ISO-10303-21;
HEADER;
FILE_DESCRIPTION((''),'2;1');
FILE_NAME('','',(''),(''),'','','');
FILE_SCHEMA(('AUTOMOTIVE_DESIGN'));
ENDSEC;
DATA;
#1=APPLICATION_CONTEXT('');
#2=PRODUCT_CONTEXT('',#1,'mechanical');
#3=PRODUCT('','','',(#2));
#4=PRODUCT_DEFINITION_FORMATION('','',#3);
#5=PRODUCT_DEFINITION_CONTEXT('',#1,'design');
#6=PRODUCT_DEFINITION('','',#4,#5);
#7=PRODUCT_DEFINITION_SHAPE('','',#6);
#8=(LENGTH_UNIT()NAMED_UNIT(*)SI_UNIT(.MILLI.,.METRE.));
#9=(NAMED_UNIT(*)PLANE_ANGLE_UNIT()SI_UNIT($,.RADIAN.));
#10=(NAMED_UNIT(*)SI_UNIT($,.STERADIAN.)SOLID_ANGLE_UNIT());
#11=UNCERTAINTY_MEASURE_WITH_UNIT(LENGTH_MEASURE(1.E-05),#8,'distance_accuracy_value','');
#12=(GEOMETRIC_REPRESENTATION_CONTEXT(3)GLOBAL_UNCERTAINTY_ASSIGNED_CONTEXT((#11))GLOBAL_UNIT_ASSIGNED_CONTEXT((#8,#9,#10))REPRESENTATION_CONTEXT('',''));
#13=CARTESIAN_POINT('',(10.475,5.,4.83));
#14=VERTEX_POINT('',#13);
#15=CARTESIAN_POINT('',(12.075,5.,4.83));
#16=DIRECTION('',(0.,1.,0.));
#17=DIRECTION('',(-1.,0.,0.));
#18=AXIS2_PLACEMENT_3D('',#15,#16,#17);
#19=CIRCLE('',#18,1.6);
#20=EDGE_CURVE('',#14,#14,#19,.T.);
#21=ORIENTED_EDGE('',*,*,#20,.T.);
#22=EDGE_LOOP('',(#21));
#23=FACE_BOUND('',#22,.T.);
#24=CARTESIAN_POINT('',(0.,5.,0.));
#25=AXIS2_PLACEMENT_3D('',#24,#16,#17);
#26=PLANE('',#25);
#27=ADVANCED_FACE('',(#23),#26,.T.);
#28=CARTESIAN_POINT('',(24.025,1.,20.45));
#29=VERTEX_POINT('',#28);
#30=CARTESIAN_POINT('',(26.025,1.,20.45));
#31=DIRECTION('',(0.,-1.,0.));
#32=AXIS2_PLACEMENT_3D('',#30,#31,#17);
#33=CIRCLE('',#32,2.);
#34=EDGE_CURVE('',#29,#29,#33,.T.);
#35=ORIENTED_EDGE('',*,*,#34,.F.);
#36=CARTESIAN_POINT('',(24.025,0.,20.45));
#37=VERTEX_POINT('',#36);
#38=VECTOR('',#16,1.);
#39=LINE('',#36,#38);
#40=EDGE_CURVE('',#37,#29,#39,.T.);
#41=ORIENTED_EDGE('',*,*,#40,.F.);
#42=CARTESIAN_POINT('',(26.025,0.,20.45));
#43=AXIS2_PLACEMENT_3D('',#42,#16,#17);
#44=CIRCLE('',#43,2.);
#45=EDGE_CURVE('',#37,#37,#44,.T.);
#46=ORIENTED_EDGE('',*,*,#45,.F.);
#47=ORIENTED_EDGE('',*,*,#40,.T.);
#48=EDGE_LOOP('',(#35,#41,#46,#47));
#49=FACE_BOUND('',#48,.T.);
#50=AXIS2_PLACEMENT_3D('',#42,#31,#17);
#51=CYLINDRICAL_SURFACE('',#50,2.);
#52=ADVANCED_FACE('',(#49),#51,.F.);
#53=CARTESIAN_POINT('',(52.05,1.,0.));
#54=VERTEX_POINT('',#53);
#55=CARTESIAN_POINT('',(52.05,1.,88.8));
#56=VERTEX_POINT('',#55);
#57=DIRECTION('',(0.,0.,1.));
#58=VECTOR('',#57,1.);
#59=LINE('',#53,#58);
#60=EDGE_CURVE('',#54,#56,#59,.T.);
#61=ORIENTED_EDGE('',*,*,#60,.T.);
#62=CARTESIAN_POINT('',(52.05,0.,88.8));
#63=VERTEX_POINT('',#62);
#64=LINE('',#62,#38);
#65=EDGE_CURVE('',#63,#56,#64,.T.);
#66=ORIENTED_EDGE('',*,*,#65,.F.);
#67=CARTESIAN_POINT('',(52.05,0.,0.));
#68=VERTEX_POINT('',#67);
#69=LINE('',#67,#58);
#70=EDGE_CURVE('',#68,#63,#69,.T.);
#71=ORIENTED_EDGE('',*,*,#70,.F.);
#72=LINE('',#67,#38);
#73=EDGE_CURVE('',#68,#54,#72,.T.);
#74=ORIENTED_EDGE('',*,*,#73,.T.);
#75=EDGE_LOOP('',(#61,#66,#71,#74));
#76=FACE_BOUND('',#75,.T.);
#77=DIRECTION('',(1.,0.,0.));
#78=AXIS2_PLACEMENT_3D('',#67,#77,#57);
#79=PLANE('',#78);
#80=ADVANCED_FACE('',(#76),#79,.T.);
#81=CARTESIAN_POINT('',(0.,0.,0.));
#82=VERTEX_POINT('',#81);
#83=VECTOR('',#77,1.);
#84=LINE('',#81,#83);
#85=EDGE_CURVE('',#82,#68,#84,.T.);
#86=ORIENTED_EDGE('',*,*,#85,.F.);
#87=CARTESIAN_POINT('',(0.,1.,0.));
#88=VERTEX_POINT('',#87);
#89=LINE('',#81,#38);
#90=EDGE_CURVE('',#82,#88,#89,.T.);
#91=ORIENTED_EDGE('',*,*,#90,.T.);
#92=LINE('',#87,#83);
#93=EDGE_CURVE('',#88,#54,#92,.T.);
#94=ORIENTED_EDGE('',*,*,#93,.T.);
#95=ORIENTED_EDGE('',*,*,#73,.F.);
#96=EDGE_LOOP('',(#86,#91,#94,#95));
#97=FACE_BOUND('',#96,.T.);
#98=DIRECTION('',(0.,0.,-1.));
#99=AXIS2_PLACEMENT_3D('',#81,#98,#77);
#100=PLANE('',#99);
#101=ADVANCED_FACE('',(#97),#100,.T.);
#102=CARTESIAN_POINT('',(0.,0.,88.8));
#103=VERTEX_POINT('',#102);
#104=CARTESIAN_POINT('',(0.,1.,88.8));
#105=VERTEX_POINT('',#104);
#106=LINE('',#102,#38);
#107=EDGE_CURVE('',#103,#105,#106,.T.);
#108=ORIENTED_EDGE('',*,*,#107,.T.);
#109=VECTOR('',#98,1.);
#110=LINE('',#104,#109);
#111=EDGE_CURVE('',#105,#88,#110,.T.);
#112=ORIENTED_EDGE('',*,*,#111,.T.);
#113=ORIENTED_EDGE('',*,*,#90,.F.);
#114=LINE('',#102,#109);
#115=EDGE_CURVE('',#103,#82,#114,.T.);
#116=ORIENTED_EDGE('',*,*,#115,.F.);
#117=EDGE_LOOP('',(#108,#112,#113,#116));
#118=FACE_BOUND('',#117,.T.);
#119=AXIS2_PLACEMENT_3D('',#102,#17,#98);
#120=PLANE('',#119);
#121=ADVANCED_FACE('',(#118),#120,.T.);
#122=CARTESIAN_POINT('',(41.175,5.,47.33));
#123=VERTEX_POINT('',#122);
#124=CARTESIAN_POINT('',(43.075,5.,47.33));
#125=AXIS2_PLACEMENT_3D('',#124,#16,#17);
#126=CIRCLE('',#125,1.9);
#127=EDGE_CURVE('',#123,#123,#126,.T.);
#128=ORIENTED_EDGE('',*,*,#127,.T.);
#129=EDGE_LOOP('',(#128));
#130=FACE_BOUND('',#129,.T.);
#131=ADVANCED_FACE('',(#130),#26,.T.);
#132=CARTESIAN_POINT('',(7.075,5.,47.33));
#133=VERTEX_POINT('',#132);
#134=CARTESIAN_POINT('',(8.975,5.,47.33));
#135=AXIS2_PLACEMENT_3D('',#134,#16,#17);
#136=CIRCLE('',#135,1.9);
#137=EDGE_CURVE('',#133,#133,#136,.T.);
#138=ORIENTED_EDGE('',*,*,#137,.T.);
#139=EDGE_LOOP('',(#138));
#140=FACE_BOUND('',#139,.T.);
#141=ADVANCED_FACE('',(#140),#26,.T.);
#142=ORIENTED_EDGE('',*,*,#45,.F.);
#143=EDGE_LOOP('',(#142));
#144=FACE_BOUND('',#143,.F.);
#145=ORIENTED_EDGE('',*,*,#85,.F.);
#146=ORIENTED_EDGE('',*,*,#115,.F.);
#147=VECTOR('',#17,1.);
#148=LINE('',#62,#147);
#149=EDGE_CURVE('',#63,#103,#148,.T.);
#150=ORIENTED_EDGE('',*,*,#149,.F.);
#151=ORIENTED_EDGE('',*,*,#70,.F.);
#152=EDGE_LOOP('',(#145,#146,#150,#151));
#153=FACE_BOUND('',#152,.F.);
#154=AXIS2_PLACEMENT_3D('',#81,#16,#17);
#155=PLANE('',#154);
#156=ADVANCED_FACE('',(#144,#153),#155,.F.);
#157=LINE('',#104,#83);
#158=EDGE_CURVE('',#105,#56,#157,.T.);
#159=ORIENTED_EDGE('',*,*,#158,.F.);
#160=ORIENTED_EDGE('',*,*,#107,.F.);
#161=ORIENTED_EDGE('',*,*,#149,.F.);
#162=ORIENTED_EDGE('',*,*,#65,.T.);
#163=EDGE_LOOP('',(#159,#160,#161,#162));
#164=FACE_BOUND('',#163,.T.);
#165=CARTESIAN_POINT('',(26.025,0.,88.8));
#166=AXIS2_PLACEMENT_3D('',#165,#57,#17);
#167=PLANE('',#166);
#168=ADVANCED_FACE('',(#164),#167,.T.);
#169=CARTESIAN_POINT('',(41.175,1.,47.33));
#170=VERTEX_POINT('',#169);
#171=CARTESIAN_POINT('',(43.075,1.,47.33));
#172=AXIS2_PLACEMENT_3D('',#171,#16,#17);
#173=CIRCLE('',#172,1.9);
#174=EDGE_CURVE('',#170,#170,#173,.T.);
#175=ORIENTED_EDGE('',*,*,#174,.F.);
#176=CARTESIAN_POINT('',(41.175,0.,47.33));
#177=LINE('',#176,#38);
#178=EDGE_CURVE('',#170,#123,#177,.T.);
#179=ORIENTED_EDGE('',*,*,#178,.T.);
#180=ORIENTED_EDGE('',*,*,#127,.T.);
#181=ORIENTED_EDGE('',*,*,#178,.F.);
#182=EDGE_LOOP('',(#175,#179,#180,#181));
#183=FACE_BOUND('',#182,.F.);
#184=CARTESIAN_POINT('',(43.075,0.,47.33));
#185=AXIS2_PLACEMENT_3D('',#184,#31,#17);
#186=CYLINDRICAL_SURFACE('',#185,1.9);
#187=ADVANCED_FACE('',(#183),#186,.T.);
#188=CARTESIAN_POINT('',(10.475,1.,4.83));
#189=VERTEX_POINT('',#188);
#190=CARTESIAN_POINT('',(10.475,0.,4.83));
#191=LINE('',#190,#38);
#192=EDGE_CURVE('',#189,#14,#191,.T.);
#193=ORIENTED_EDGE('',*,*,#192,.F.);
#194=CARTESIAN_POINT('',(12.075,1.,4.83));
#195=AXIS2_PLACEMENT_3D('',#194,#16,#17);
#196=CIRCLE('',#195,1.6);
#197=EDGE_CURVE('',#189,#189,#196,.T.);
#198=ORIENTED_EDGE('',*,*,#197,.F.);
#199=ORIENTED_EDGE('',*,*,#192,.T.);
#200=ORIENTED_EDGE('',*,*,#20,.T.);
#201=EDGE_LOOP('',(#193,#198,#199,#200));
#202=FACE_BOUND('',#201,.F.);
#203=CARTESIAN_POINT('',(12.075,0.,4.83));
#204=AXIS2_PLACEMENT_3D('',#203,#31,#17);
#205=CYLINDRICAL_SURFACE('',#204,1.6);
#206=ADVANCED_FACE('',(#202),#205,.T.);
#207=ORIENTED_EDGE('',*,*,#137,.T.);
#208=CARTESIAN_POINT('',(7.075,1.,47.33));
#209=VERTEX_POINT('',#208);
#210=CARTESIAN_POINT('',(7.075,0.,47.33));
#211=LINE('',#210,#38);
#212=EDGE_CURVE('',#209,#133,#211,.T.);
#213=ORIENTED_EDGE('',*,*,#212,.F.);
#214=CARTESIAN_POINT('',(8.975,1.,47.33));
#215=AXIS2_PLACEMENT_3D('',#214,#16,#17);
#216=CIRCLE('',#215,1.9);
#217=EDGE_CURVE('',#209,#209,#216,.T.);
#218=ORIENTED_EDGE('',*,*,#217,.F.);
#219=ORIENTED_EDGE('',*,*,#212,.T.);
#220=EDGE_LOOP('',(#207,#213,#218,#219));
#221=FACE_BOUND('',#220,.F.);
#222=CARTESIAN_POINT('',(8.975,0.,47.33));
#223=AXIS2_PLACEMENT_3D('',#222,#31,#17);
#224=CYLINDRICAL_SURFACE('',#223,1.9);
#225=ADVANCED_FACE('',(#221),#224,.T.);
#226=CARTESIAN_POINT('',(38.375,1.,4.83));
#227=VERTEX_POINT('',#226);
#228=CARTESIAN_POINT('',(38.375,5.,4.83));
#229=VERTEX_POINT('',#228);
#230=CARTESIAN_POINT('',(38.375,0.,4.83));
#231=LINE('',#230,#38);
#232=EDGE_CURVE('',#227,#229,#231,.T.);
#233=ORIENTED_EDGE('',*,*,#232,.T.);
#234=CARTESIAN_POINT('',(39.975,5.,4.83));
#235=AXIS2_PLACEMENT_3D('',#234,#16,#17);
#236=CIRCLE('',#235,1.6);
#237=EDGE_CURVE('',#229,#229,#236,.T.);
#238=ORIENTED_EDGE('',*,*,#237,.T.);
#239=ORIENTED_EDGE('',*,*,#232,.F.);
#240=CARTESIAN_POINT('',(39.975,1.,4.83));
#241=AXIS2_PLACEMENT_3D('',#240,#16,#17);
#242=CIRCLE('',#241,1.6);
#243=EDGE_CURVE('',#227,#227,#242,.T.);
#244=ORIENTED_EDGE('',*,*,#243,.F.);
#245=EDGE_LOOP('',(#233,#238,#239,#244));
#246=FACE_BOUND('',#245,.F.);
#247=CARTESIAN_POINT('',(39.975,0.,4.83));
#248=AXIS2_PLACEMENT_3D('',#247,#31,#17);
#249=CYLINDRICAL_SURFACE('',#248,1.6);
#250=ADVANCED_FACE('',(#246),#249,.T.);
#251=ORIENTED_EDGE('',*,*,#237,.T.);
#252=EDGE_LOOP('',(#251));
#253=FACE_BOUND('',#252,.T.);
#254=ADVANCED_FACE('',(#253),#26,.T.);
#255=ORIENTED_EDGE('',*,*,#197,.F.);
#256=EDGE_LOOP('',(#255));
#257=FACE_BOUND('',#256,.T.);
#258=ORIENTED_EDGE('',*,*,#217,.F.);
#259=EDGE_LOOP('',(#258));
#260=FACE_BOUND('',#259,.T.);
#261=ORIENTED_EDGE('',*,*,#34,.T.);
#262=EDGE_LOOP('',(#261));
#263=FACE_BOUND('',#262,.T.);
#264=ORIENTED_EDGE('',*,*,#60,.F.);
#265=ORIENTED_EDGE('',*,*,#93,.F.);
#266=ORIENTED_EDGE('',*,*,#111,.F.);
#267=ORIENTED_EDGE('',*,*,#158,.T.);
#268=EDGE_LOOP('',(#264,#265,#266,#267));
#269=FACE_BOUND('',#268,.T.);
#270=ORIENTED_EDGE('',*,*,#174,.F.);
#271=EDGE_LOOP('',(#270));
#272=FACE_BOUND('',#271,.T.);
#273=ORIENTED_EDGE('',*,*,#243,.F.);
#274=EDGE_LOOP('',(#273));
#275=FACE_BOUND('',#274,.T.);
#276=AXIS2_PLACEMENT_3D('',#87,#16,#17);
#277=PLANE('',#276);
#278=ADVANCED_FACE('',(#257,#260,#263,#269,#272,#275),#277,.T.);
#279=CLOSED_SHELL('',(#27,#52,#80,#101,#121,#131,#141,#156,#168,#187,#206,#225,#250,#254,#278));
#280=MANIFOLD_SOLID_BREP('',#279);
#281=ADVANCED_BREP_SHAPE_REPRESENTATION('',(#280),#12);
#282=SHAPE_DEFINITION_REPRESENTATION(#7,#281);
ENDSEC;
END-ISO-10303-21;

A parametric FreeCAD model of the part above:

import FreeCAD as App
import Part
import Sketcher

V = App.Vector
Q = App.Units.Quantity

doc = App.newDocument("Part")
params = doc.addObject("Spreadsheet::Sheet", "Params")
for row, (alias, value) in enumerate([
    ("sketch1_diameter", "3.8 mm"),
    ("sketch1_diameter2", "3.2 mm"),
    ("pad1_length", "5 mm"),
    ("sketch2_diameter", "3.2 mm"),
    ("sketch2_diameter2", "3.8 mm"),
    ("sketch2_height", "88.8 mm"),
    ("sketch2_width", "52.05 mm"),
    ("pad2_length", "1 mm"),
    ("sketch3_diameter", "4 mm"),
    ("pocket1_length", "5 mm"),
], start=1):
    params.set(f"A{row}", alias)
    params.set(f"B{row}", "=" + value)
    params.setAlias(f"B{row}", alias)

body = doc.addObject("PartDesign::Body", "Body")
body.AllowCompound = True

# Sketch on XZ plane
sketch1 = body.newObject("Sketcher::SketchObject", "Sketch")
sketch1.AttachmentSupport = (doc.getObject("XZ_Plane"), [""])
sketch1.MapMode = "FlatFace"
sketch1.addGeometry([
    Part.Circle(V(9, 47.3, 0), V(0, 0, 1), 1.9),
    Part.Circle(V(12.1, 4.8, 0), V(0, 0, 1), 1.6),
    Part.Circle(V(43.1, 47.3, 0), V(0, 0, 1), 1.9),
    Part.Circle(V(40, 4.8, 0), V(0, 0, 1), 1.6),
], False)
sketch1.addConstraint([
    Sketcher.Constraint("Equal", 0, 2),
    Sketcher.Constraint("Equal", 1, 3),
    Sketcher.Constraint("Horizontal", 0, 3, 2, 3),
    Sketcher.Constraint("Horizontal", 1, 3, 3, 3),
    Sketcher.Constraint("Diameter", 0, Q("3.8 mm")),
    Sketcher.Constraint("Diameter", 1, Q("3.2 mm")),
    Sketcher.Constraint("DistanceX", 0, 3, 1, 3, Q("3.1 mm")),
    Sketcher.Constraint("DistanceY", 1, 3, 0, 3, Q("42.5 mm")),
    Sketcher.Constraint("DistanceX", 1, 3, 3, 3, Q("27.9 mm")),
    Sketcher.Constraint("DistanceX", 3, 3, 2, 3, Q("3.1 mm")),
    Sketcher.Constraint("DistanceY", -1, 1, 1, 3, Q("4.83 mm")),
    Sketcher.Constraint("DistanceX", -1, 1, 0, 3, Q("8.975 mm")),
])
sketch1.setExpression("Constraints[4]", "Params.sketch1_diameter")
sketch1.setExpression("Constraints[5]", "Params.sketch1_diameter2")
pad1 = body.newObject("PartDesign::Pad", "Pad")
pad1.Profile = sketch1
pad1.setExpression("Length", "Params.pad1_length")
pad1.Reversed = True

# Sketch on XZ plane
sketch2 = body.newObject("Sketcher::SketchObject", "Sketch001")
sketch2.AttachmentSupport = (doc.getObject("XZ_Plane"), [""])
sketch2.MapMode = "FlatFace"
sketch2.addGeometry([
    Part.LineSegment(V(52, 0, 0), V(0, 0, 0)),  # 0
    Part.LineSegment(V(0, 0, 0), V(0, 88.8, 0)),  # 1
    Part.LineSegment(V(0, 88.8, 0), V(52, 88.8, 0)),  # 2
    Part.LineSegment(V(52, 88.8, 0), V(52, 0, 0)),  # 3
    Part.Circle(V(40, 4.8, 0), V(0, 0, 1), 1.6),  # 4
    Part.Circle(V(12.1, 4.8, 0), V(0, 0, 1), 1.6),  # 5
    Part.Circle(V(43.1, 47.3, 0), V(0, 0, 1), 1.9),  # 6
    Part.Circle(V(9, 47.3, 0), V(0, 0, 1), 1.9),  # 7
], False)
sketch2.addConstraint([
    Sketcher.Constraint("Coincident", 0, 2, 1, 1),
    Sketcher.Constraint("Coincident", 1, 2, 2, 1),
    Sketcher.Constraint("Coincident", 2, 2, 3, 1),
    Sketcher.Constraint("Coincident", 3, 2, 0, 1),
    Sketcher.Constraint("Horizontal", 0),
    Sketcher.Constraint("Vertical", 1),
    Sketcher.Constraint("Horizontal", 2),
    Sketcher.Constraint("Vertical", 3),
    Sketcher.Constraint("Coincident", 0, 2, -1, 1),
    Sketcher.Constraint("Equal", 4, 5),
    Sketcher.Constraint("Equal", 6, 7),
    Sketcher.Constraint("Horizontal", 4, 3, 5, 3),
    Sketcher.Constraint("Horizontal", 6, 3, 7, 3),
    Sketcher.Constraint("Diameter", 4, Q("3.2 mm")),
    Sketcher.Constraint("Diameter", 6, Q("3.8 mm")),
    Sketcher.Constraint("DistanceY", 1, 1, 1, 2, Q("88.8 mm")),
    Sketcher.Constraint("DistanceX", 0, 2, 0, 1, Q("52.05 mm")),
    Sketcher.Constraint("DistanceX", 5, 3, 4, 3, Q("27.9 mm")),
    Sketcher.Constraint("DistanceX", 4, 3, 6, 3, Q("3.1 mm")),
    Sketcher.Constraint("DistanceY", 4, 3, 6, 3, Q("42.5 mm")),
    Sketcher.Constraint("DistanceX", 7, 3, 5, 3, Q("3.1 mm")),
    Sketcher.Constraint("DistanceY", -1, 1, 4, 3, Q("4.83 mm")),
    Sketcher.Constraint("DistanceX", -1, 1, 4, 3, Q("39.975 mm")),
])
sketch2.setExpression("Constraints[13]", "Params.sketch2_diameter")
sketch2.setExpression("Constraints[14]", "Params.sketch2_diameter2")
sketch2.setExpression("Constraints[15]", "Params.sketch2_height")
sketch2.setExpression("Constraints[16]", "Params.sketch2_width")
pad2 = body.newObject("PartDesign::Pad", "Pad001")
pad2.Profile = sketch2
pad2.setExpression("Length", "Params.pad2_length")
pad2.Reversed = True

# Sketch on XZ plane
sketch3 = body.newObject("Sketcher::SketchObject", "Sketch002")
sketch3.AttachmentSupport = (doc.getObject("XZ_Plane"), [""])
sketch3.MapMode = "FlatFace"
sketch3.addGeometry(Part.Circle(V(26, 20.4, 0), V(0, 0, 1), 2), False)
sketch3.addConstraint([
    Sketcher.Constraint("Diameter", 0, Q("4 mm")),
    Sketcher.Constraint("DistanceY", -1, 1, 0, 3, Q("20.45 mm")),
    Sketcher.Constraint("DistanceX", -1, 1, 0, 3, Q("26.025 mm")),
])
sketch3.setExpression("Constraints[0]", "Params.sketch3_diameter")
pocket1 = body.newObject("PartDesign::Pocket", "Pocket")
pocket1.Profile = sketch3
pocket1.setExpression("Length", "Params.pocket1_length")
pocket1.Midplane = True

doc.recompute()
